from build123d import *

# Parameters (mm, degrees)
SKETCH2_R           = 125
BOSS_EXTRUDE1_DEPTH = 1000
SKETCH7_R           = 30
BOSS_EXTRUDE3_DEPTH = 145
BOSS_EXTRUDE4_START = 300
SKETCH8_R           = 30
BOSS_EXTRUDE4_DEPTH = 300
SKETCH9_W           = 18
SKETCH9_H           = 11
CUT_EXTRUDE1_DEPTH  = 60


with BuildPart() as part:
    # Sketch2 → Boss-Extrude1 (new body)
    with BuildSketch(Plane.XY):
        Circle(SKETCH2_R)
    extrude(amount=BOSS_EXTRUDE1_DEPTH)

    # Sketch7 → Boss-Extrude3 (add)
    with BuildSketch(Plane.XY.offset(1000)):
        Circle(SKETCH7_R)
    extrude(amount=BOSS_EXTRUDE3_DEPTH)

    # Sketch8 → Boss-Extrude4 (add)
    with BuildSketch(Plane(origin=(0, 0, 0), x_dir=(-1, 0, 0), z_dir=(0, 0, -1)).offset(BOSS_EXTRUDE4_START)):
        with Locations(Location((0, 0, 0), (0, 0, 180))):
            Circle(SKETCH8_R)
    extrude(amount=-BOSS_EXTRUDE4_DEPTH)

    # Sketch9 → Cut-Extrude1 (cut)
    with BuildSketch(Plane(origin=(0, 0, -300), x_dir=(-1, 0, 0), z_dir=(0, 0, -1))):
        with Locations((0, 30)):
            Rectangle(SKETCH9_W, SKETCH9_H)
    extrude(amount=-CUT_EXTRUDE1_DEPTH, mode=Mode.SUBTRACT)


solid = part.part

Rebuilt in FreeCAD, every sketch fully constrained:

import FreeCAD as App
import Part
import Sketcher
from FreeCAD import Vector


def add_polygon(sketch, points):
    """Adds a closed chain of lines whose ends are joined by coincident constraints."""
    first, n = sketch.GeometryCount, len(points)
    for a, b in zip(points, points[1:] + points[:1]):
        sketch.addGeometry(Part.LineSegment(App.Vector(*a, 0), App.Vector(*b, 0)), False)
    for i in range(n):
        sketch.addConstraint(Sketcher.Constraint("Coincident", first + i, 2, first + (i + 1) % n, 1))

doc = App.newDocument("Part")
body = doc.addObject("PartDesign::Body", "Body")

sketch1 = doc.addObject("Sketcher::SketchObject", "Sketch")
body.addObject(sketch1)
sketch1.AttachmentSupport = (doc.XY_Plane, [""])
sketch1.MapMode = "FlatFace"
sketch1.addGeometry(Part.Circle(Vector(0, 0, 0), Vector(0, 0, 1), 125), False)
sketch1.addConstraint([
    Sketcher.Constraint("Coincident", 0, 3, -1, 1),
    Sketcher.Constraint("Diameter", 0, 250.0),
])
pad1 = doc.addObject("PartDesign::Pad", "Pad")
body.addObject(pad1)
pad1.Profile = sketch1
pad1.Length = 1000

sketch2 = doc.addObject("Sketcher::SketchObject", "Sketch001")
body.addObject(sketch2)
sketch2.AttachmentSupport = (doc.XY_Plane, [""])
sketch2.MapMode = "FlatFace"
sketch2.AttachmentOffset = App.Placement(Vector(0, 0, 1000), App.Rotation())
sketch2.addGeometry(Part.Circle(Vector(0, 0, 0), Vector(0, 0, 1), 30), False)
sketch2.addConstraint([
    Sketcher.Constraint("Coincident", 0, 3, -1, 1),
    Sketcher.Constraint("Diameter", 0, 60.0),
])
pad2 = doc.addObject("PartDesign::Pad", "Pad001")
body.addObject(pad2)
pad2.Profile = sketch2
pad2.Length = 145

sketch3 = doc.addObject("Sketcher::SketchObject", "Sketch002")
body.addObject(sketch3)
sketch3.AttachmentSupport = (doc.XY_Plane, [""])
sketch3.MapMode = "FlatFace"
sketch3.AttachmentOffset = App.Placement(Vector(0, 0, -300), App.Rotation())
sketch3.addGeometry(Part.Circle(Vector(0, 0, 0), Vector(0, 0, 1), 30), False)
sketch3.addConstraint([
    Sketcher.Constraint("Coincident", 0, 3, -1, 1),
    Sketcher.Constraint("Diameter", 0, 60.0),
])
pad3 = doc.addObject("PartDesign::Pad", "Pad002")
body.addObject(pad3)
pad3.Profile = sketch3
pad3.Length = 300

sketch4 = doc.addObject("Sketcher::SketchObject", "Sketch003")
body.addObject(sketch4)
sketch4.AttachmentSupport = (doc.XY_Plane, [""])
sketch4.MapMode = "FlatFace"
sketch4.AttachmentOffset = App.Placement(Vector(0, 0, -300), App.Rotation())
add_polygon(sketch4, [(9, 36), (9, 24), (-9, 24), (-9, 36)])
sketch4.addConstraint([
    Sketcher.Constraint("Vertical", 0),
    Sketcher.Constraint("Horizontal", 1),
    Sketcher.Constraint("Vertical", 2),
    Sketcher.Constraint("Horizontal", 3),
    Sketcher.Constraint("DistanceX", 1, 2, 1, 1, 18.0),
    Sketcher.Constraint("DistanceY", 0, 2, 0, 1, 11.0),
    Sketcher.Constraint("DistanceX", -1, 1, 0, 2, 9.0),
    Sketcher.Constraint("DistanceY", -1, 1, 0, 2, 24.5),
])
pocket1 = doc.addObject("PartDesign::Pocket", "Pocket")
body.addObject(pocket1)
pocket1.Profile = sketch4
pocket1.Length = 60
pocket1.Reversed = True

doc.recompute()
